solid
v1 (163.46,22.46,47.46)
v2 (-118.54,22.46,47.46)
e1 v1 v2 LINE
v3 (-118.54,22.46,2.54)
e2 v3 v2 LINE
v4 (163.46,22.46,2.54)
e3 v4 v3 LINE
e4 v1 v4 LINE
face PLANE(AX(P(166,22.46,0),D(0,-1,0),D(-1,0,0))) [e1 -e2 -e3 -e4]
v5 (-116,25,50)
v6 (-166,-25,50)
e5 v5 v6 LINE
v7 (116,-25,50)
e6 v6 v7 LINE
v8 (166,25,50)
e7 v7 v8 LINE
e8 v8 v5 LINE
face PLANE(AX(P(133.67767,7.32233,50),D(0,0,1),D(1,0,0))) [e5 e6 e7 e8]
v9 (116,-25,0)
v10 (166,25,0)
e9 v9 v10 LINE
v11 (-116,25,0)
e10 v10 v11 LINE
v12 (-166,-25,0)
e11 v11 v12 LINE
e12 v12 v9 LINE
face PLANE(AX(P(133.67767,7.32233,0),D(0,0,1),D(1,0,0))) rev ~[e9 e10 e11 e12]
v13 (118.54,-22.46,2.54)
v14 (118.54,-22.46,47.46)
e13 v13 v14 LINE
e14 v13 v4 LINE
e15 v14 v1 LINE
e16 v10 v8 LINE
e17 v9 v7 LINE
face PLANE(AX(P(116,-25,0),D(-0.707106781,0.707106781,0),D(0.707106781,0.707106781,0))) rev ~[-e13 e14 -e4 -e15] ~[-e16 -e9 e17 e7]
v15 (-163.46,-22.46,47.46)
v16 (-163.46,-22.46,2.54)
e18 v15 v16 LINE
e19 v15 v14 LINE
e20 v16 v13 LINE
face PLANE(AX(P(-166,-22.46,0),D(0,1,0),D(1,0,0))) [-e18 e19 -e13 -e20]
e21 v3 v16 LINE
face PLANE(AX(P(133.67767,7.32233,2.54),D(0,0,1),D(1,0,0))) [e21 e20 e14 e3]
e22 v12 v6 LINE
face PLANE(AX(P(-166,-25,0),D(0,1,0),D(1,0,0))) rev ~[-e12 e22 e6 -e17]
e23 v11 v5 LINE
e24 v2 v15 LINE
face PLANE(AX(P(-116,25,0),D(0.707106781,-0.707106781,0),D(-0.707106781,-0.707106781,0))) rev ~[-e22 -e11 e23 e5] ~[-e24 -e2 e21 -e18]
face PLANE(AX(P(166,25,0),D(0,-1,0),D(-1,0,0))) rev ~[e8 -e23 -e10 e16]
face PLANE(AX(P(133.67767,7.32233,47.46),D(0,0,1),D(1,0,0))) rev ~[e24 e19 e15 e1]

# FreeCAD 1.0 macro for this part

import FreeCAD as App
import Part
import Sketcher
Q = App.Units.Quantity


def faces_at(feature, points):
    """Names of the faces that lie closest to the given points."""
    faces = feature.Shape.Faces
    near = lambda p: min(range(len(faces)), key=lambda i: faces[i].distToShape(Part.Vertex(*p))[0])
    return sorted({f"Face{near(p) + 1}" for p in points})

doc = App.newDocument("Part")
body = doc.addObject("PartDesign::Body", "Body")

# Sketch on XY plane
sketch1 = body.newObject("Sketcher::SketchObject", "Sketch")
sketch1.AttachmentSupport = (doc.getObject("XY_Plane"), [""])
sketch1.MapMode = "FlatFace"
sketch1.addGeometry([
    Part.LineSegment(App.Vector(116, -25, 0), App.Vector(166, 25, 0)),
    Part.LineSegment(App.Vector(166, 25, 0), App.Vector(-116, 25, 0)),
    Part.LineSegment(App.Vector(-116, 25, 0), App.Vector(-166, -25, 0)),
    Part.LineSegment(App.Vector(-166, -25, 0), App.Vector(116, -25, 0)),
], False)
sketch1.addConstraint([
    Sketcher.Constraint("Coincident", 0, 2, 1, 1),
    Sketcher.Constraint("Coincident", 1, 2, 2, 1),
    Sketcher.Constraint("Coincident", 2, 2, 3, 1),
    Sketcher.Constraint("Coincident", 3, 2, 0, 1),
    Sketcher.Constraint("Horizontal", 1),
    Sketcher.Constraint("Horizontal", 3),
    Sketcher.Constraint("Symmetric", 0, 2, 2, 2, -1, 1),
    Sketcher.Constraint("Parallel", 0, 2),
    Sketcher.Constraint("DistanceX", 1, 2, 1, 1, 282.0),
    Sketcher.Constraint("Angle", 0, Q("45 deg")),
    Sketcher.Constraint("DistanceX", -1, 1, 0, 2, 166.0),
])
pad1 = body.newObject("PartDesign::Pad", "Pad")
pad1.Profile = sketch1
pad1.Length = 50
doc.recompute()

thickness = body.newObject("PartDesign::Thickness", "Thickness")
thickness.Base = (pad1, faces_at(pad1, [(141, 0, 25), (-141, 0, 25)]))
thickness.Value = 2.54
thickness.Reversed = True
thickness.Join = "Arc"

doc.recompute()
